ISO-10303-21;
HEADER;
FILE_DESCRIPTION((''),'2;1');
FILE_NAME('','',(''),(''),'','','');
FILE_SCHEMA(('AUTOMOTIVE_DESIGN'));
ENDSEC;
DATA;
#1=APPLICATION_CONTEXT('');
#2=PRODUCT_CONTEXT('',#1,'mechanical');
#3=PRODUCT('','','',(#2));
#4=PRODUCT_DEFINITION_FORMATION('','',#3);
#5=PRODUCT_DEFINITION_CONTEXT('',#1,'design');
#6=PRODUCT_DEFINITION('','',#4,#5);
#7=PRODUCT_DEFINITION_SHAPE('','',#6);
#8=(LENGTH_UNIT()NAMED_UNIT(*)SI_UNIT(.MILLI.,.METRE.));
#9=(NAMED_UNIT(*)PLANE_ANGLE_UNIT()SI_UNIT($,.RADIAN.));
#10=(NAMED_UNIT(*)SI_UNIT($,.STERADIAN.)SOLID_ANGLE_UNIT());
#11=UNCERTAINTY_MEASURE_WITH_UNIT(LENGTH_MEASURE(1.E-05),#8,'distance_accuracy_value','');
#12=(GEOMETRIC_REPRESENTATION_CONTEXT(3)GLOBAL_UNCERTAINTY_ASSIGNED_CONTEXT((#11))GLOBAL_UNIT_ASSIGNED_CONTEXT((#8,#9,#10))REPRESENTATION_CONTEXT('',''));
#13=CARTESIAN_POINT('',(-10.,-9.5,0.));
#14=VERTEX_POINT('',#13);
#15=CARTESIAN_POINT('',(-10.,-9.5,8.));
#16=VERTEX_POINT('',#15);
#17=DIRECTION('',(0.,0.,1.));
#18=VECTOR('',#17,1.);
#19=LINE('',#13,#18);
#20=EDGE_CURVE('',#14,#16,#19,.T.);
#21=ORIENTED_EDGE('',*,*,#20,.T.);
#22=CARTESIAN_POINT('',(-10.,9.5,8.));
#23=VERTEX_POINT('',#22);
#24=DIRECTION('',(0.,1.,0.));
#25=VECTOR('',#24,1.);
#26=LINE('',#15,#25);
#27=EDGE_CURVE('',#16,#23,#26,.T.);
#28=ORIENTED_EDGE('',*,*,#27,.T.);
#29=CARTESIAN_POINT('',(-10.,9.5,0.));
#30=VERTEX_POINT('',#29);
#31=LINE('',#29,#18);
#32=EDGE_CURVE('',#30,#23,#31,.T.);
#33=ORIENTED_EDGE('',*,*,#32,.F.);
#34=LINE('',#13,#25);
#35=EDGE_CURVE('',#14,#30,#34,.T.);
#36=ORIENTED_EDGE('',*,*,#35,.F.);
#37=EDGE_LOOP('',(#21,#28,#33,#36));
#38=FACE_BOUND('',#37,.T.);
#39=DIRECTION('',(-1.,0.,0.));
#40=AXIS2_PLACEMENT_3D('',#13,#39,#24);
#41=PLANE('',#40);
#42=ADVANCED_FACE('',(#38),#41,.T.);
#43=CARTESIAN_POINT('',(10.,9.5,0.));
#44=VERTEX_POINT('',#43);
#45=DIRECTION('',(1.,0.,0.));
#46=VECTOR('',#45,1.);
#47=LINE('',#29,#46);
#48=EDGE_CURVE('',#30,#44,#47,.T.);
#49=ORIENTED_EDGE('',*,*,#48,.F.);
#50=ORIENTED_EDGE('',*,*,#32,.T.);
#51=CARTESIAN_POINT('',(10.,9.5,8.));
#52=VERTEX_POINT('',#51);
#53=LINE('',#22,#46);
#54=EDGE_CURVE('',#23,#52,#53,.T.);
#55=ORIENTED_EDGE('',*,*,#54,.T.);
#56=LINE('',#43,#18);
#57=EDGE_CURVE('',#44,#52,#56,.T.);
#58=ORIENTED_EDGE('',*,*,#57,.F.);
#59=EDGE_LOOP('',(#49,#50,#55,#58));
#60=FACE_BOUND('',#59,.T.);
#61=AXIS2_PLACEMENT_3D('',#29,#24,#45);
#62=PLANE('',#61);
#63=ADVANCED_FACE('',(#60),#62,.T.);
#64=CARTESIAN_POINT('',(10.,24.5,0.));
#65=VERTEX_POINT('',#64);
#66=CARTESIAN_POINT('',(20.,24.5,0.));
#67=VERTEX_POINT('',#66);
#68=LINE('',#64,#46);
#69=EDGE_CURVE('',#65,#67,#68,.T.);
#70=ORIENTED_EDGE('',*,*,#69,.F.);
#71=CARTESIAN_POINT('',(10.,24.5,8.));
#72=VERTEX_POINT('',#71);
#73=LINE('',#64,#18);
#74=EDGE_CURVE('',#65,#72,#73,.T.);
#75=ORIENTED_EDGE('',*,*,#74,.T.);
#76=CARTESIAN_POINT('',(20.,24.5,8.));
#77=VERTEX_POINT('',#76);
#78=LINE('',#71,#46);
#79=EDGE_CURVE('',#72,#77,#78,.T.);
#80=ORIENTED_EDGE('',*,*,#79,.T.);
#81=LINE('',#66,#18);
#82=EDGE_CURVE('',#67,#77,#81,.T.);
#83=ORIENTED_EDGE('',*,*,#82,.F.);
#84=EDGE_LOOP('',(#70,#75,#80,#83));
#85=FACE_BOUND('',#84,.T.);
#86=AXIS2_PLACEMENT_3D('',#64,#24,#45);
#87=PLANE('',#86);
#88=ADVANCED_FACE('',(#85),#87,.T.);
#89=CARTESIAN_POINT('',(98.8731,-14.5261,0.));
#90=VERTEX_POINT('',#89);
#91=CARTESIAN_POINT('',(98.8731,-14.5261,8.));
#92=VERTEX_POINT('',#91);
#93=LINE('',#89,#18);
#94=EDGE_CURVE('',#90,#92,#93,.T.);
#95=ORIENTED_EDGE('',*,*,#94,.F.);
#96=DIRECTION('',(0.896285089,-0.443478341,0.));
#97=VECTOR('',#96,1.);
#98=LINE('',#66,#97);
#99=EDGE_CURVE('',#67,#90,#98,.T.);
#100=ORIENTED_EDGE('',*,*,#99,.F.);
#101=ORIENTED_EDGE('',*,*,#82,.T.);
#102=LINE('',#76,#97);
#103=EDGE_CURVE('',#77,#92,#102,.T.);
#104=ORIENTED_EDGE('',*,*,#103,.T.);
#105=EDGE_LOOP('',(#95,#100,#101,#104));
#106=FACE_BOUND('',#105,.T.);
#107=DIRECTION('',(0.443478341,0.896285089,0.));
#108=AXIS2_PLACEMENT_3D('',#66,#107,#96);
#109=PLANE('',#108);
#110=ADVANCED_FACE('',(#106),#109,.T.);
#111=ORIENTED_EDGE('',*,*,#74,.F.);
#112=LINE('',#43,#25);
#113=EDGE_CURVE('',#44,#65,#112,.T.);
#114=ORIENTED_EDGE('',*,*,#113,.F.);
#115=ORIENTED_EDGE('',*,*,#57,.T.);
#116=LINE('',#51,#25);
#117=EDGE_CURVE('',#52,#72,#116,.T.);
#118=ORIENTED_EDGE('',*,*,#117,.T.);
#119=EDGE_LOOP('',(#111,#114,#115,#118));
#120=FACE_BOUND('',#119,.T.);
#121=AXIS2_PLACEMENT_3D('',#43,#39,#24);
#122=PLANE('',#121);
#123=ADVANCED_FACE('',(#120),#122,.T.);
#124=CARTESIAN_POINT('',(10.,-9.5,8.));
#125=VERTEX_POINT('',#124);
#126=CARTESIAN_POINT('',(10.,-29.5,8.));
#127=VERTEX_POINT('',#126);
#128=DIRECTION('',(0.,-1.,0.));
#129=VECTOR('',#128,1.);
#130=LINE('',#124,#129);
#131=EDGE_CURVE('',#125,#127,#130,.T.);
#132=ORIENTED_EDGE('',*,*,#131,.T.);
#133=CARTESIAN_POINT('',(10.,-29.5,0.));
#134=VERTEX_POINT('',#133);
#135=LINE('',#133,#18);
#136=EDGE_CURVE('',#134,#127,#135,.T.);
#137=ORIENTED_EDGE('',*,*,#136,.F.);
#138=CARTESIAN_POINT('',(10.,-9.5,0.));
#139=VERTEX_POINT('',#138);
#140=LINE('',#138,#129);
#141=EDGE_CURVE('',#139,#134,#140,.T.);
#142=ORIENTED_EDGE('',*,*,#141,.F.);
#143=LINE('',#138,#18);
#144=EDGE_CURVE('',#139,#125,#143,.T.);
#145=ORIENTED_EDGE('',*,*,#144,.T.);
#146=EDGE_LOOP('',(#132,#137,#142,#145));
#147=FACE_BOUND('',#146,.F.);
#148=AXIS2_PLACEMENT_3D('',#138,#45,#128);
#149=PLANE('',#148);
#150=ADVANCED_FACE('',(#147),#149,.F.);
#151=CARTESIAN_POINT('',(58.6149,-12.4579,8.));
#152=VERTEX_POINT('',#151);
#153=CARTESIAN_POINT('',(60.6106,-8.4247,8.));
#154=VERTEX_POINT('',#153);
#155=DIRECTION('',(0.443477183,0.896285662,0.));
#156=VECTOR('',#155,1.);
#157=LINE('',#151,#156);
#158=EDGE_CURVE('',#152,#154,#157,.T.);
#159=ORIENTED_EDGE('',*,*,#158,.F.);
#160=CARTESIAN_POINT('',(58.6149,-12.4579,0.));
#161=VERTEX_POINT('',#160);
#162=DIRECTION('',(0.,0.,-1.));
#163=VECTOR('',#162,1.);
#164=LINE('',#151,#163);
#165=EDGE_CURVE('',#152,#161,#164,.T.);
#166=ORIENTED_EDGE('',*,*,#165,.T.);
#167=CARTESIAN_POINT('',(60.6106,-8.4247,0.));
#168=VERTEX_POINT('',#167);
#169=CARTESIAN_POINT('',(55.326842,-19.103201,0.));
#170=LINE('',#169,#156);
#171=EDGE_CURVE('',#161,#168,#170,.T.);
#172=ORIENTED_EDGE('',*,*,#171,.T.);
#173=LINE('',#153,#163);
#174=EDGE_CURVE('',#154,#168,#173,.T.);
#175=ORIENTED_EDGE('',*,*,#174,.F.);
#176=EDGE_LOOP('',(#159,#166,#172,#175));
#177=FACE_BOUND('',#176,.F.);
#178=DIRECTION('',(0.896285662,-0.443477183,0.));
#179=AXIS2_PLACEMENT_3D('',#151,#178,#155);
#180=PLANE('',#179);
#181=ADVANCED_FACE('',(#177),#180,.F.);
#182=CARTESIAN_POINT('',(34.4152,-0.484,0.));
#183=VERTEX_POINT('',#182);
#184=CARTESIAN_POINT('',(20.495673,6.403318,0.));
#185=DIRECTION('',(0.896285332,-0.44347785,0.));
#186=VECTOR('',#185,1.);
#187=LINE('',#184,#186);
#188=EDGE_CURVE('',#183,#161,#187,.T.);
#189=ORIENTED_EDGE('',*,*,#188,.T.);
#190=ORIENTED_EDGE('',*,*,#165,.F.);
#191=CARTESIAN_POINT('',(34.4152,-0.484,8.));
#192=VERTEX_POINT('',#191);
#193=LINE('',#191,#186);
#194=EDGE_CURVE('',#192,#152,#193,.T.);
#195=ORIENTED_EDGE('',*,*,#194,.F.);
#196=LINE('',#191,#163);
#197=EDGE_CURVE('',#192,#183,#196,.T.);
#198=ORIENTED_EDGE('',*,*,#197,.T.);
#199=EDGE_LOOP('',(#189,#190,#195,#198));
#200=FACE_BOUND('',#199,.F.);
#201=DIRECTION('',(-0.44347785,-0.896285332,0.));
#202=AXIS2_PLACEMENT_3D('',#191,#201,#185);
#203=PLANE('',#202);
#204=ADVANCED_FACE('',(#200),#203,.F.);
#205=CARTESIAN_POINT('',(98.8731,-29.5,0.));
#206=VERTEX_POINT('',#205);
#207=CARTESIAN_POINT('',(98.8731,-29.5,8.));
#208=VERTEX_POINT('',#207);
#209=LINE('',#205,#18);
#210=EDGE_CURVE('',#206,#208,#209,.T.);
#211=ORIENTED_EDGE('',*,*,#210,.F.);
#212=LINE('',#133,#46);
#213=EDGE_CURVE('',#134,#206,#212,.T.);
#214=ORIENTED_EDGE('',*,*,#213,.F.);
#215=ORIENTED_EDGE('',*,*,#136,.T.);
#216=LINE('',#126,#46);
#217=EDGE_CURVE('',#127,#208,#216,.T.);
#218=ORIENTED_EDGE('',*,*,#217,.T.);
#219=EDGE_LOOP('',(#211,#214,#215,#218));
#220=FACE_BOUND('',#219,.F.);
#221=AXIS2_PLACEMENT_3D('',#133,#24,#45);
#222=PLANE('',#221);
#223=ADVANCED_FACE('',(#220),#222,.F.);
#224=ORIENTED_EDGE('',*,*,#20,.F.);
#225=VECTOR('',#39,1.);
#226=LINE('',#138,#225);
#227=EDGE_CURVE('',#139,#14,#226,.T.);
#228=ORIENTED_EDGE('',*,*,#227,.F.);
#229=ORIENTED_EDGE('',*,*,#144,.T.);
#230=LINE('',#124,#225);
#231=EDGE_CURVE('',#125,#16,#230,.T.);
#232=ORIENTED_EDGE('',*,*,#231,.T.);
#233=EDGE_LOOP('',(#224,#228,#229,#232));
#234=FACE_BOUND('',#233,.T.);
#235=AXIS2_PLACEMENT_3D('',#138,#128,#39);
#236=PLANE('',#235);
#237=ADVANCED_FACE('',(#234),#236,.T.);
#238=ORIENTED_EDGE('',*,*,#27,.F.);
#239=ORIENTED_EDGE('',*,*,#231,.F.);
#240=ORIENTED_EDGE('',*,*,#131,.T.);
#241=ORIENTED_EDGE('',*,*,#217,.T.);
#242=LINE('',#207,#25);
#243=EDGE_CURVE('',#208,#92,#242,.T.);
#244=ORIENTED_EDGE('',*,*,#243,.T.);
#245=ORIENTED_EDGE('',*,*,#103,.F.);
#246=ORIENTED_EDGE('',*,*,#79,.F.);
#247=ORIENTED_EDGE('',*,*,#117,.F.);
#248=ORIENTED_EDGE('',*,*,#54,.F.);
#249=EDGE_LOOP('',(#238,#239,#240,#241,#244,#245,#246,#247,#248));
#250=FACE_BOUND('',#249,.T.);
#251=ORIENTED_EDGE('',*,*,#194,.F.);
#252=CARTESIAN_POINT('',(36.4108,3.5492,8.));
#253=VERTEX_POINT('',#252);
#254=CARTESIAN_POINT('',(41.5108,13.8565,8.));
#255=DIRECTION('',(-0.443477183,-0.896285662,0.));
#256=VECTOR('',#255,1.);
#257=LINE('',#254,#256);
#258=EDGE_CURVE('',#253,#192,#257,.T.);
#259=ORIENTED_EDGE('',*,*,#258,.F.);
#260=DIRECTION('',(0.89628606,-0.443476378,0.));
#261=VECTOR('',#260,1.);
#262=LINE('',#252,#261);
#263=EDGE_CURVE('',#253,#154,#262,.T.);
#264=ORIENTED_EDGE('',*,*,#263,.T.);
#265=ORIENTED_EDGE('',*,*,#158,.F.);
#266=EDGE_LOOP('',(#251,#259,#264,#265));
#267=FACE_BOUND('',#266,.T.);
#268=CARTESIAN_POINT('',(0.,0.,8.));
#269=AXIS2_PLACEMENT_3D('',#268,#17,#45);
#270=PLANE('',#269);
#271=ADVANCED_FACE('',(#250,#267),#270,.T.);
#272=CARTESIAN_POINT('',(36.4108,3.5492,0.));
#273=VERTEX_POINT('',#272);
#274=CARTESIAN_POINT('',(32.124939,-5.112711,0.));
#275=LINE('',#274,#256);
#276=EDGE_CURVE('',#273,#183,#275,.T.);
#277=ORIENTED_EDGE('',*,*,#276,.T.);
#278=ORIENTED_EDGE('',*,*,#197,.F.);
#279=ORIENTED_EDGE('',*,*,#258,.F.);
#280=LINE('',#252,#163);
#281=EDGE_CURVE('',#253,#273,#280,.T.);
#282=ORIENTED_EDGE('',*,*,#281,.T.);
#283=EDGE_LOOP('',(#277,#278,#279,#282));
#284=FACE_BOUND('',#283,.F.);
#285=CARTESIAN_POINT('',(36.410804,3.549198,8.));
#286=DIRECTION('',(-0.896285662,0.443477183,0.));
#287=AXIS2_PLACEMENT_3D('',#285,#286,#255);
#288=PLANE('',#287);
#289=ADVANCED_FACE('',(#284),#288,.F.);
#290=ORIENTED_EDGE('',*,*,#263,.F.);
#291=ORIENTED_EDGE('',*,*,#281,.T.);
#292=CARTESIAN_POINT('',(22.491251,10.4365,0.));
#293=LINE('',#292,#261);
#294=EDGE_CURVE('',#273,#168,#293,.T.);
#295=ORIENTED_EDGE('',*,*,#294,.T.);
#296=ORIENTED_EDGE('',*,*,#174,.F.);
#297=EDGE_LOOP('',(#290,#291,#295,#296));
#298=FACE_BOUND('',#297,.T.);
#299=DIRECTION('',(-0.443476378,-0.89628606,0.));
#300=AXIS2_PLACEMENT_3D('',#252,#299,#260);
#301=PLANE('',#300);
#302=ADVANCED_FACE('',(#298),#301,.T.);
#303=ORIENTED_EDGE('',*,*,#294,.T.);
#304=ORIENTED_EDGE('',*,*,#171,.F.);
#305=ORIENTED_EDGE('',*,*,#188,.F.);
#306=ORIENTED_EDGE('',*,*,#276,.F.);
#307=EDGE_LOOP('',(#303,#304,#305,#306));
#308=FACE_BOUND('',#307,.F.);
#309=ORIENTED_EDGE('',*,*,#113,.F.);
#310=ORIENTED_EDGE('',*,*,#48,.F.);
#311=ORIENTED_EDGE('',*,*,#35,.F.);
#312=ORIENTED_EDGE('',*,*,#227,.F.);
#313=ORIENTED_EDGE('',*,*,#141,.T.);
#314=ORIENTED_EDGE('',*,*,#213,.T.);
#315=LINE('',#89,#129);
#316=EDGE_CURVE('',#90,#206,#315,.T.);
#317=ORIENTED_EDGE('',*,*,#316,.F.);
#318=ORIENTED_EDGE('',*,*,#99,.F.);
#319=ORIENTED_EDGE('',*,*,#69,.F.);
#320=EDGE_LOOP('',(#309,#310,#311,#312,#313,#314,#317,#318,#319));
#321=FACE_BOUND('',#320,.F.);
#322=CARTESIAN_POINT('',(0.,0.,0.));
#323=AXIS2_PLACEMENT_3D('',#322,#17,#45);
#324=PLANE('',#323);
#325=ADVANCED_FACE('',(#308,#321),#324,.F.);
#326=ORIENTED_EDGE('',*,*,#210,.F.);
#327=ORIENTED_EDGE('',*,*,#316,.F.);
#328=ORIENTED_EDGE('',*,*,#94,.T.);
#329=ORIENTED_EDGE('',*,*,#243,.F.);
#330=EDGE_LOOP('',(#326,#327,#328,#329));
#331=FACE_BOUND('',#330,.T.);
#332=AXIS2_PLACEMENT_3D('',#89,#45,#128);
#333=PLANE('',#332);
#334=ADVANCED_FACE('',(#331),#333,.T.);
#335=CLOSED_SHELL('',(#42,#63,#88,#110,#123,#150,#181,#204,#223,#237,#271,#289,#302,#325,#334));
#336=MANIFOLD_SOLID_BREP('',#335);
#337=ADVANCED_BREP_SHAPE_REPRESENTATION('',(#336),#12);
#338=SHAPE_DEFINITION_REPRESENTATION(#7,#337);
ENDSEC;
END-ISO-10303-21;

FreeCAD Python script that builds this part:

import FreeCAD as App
import Part
import Sketcher

V = App.Vector


def add_polygon(sketch, points):
    """Adds a closed chain of lines whose ends are joined by coincident constraints."""
    first, n = sketch.GeometryCount, len(points)
    for a, b in zip(points, points[1:] + points[:1]):
        sketch.addGeometry(Part.LineSegment(App.Vector(*a, 0), App.Vector(*b, 0)), False)
    for i in range(n):
        sketch.addConstraint(Sketcher.Constraint("Coincident", first + i, 2, first + (i + 1) % n, 1))

doc = App.newDocument("Part")
body = doc.addObject("PartDesign::Body", "Body")

# Sketch on XY plane
sketch1 = body.newObject("Sketcher::SketchObject", "Sketch")
sketch1.AttachmentSupport = (doc.getObject("XY_Plane"), [""])
sketch1.MapMode = "FlatFace"
add_polygon(sketch1, [(10, 10), (-10, 10), (-10, -10), (10, -10), (10, -30), (99, -30), (99, -15), (20, 24), (10, 24)])  # lines 0-8
sketch1.addConstraint([
    Sketcher.Constraint("Horizontal", 0),
    Sketcher.Constraint("Vertical", 1),
    Sketcher.Constraint("Horizontal", 2),
    Sketcher.Constraint("Vertical", 3),
    Sketcher.Constraint("Horizontal", 4),
    Sketcher.Constraint("Vertical", 5),
    Sketcher.Constraint("Horizontal", 7),
    Sketcher.Constraint("Vertical", 8),
    Sketcher.Constraint("Symmetric", 0, 2, 2, 2, -1, 1),
    Sketcher.Constraint("Vertical", 3, 2, 7, 2),
    Sketcher.Constraint("Equal", 2, 3),
    Sketcher.Constraint("DistanceX", 0, 2, 0, 1, 20.0),
    Sketcher.Constraint("DistanceX", 7, 2, 7, 1, 10.0),
    Sketcher.Constraint("DistanceY", 1, 2, 1, 1, 19.0),
    Sketcher.Constraint("DistanceY", 8, 2, 8, 1, 15.0),
    Sketcher.Constraint("Distance", 6, 88.0),
    Sketcher.Constraint("DistanceX", 4, 1, 4, 2, 88.873),
])
pad1 = body.newObject("PartDesign::Pad", "Pad")
pad1.Profile = sketch1
pad1.Length = 8

# Sketch on XY plane
sketch2 = body.newObject("Sketcher::SketchObject", "Sketch001")
sketch2.AttachmentSupport = (doc.getObject("XY_Plane"), [""])
sketch2.MapMode = "FlatFace"
sketch2.AttachmentOffset = App.Placement(V(0, 0, 8), App.Rotation())
add_polygon(sketch2, [(58.6, -12.5), (60.6, -8.4), (36.4, 3.5), (34.4, -0.5)])  # lines 0-3
sketch2.addConstraint([
    Sketcher.Constraint("Perpendicular", 0, 1),
    Sketcher.Constraint("Perpendicular", 1, 2),
    Sketcher.Constraint("Perpendicular", 2, 3),
    Sketcher.Constraint("Distance", 1, 27.0),
    Sketcher.Constraint("Distance", 0, 4.5),
    Sketcher.Constraint("DistanceY", 2, 2, -1, 1, 0.484),
    Sketcher.Constraint("DistanceX", -1, 1, 3, 2, 58.615),
    Sketcher.Constraint("DistanceY", 3, 2, -1, 1, 12.458),
])
pocket1 = body.newObject("PartDesign::Pocket", "Pocket")
pocket1.Profile = sketch2
pocket1.Type = "ThroughAll"

doc.recompute()
